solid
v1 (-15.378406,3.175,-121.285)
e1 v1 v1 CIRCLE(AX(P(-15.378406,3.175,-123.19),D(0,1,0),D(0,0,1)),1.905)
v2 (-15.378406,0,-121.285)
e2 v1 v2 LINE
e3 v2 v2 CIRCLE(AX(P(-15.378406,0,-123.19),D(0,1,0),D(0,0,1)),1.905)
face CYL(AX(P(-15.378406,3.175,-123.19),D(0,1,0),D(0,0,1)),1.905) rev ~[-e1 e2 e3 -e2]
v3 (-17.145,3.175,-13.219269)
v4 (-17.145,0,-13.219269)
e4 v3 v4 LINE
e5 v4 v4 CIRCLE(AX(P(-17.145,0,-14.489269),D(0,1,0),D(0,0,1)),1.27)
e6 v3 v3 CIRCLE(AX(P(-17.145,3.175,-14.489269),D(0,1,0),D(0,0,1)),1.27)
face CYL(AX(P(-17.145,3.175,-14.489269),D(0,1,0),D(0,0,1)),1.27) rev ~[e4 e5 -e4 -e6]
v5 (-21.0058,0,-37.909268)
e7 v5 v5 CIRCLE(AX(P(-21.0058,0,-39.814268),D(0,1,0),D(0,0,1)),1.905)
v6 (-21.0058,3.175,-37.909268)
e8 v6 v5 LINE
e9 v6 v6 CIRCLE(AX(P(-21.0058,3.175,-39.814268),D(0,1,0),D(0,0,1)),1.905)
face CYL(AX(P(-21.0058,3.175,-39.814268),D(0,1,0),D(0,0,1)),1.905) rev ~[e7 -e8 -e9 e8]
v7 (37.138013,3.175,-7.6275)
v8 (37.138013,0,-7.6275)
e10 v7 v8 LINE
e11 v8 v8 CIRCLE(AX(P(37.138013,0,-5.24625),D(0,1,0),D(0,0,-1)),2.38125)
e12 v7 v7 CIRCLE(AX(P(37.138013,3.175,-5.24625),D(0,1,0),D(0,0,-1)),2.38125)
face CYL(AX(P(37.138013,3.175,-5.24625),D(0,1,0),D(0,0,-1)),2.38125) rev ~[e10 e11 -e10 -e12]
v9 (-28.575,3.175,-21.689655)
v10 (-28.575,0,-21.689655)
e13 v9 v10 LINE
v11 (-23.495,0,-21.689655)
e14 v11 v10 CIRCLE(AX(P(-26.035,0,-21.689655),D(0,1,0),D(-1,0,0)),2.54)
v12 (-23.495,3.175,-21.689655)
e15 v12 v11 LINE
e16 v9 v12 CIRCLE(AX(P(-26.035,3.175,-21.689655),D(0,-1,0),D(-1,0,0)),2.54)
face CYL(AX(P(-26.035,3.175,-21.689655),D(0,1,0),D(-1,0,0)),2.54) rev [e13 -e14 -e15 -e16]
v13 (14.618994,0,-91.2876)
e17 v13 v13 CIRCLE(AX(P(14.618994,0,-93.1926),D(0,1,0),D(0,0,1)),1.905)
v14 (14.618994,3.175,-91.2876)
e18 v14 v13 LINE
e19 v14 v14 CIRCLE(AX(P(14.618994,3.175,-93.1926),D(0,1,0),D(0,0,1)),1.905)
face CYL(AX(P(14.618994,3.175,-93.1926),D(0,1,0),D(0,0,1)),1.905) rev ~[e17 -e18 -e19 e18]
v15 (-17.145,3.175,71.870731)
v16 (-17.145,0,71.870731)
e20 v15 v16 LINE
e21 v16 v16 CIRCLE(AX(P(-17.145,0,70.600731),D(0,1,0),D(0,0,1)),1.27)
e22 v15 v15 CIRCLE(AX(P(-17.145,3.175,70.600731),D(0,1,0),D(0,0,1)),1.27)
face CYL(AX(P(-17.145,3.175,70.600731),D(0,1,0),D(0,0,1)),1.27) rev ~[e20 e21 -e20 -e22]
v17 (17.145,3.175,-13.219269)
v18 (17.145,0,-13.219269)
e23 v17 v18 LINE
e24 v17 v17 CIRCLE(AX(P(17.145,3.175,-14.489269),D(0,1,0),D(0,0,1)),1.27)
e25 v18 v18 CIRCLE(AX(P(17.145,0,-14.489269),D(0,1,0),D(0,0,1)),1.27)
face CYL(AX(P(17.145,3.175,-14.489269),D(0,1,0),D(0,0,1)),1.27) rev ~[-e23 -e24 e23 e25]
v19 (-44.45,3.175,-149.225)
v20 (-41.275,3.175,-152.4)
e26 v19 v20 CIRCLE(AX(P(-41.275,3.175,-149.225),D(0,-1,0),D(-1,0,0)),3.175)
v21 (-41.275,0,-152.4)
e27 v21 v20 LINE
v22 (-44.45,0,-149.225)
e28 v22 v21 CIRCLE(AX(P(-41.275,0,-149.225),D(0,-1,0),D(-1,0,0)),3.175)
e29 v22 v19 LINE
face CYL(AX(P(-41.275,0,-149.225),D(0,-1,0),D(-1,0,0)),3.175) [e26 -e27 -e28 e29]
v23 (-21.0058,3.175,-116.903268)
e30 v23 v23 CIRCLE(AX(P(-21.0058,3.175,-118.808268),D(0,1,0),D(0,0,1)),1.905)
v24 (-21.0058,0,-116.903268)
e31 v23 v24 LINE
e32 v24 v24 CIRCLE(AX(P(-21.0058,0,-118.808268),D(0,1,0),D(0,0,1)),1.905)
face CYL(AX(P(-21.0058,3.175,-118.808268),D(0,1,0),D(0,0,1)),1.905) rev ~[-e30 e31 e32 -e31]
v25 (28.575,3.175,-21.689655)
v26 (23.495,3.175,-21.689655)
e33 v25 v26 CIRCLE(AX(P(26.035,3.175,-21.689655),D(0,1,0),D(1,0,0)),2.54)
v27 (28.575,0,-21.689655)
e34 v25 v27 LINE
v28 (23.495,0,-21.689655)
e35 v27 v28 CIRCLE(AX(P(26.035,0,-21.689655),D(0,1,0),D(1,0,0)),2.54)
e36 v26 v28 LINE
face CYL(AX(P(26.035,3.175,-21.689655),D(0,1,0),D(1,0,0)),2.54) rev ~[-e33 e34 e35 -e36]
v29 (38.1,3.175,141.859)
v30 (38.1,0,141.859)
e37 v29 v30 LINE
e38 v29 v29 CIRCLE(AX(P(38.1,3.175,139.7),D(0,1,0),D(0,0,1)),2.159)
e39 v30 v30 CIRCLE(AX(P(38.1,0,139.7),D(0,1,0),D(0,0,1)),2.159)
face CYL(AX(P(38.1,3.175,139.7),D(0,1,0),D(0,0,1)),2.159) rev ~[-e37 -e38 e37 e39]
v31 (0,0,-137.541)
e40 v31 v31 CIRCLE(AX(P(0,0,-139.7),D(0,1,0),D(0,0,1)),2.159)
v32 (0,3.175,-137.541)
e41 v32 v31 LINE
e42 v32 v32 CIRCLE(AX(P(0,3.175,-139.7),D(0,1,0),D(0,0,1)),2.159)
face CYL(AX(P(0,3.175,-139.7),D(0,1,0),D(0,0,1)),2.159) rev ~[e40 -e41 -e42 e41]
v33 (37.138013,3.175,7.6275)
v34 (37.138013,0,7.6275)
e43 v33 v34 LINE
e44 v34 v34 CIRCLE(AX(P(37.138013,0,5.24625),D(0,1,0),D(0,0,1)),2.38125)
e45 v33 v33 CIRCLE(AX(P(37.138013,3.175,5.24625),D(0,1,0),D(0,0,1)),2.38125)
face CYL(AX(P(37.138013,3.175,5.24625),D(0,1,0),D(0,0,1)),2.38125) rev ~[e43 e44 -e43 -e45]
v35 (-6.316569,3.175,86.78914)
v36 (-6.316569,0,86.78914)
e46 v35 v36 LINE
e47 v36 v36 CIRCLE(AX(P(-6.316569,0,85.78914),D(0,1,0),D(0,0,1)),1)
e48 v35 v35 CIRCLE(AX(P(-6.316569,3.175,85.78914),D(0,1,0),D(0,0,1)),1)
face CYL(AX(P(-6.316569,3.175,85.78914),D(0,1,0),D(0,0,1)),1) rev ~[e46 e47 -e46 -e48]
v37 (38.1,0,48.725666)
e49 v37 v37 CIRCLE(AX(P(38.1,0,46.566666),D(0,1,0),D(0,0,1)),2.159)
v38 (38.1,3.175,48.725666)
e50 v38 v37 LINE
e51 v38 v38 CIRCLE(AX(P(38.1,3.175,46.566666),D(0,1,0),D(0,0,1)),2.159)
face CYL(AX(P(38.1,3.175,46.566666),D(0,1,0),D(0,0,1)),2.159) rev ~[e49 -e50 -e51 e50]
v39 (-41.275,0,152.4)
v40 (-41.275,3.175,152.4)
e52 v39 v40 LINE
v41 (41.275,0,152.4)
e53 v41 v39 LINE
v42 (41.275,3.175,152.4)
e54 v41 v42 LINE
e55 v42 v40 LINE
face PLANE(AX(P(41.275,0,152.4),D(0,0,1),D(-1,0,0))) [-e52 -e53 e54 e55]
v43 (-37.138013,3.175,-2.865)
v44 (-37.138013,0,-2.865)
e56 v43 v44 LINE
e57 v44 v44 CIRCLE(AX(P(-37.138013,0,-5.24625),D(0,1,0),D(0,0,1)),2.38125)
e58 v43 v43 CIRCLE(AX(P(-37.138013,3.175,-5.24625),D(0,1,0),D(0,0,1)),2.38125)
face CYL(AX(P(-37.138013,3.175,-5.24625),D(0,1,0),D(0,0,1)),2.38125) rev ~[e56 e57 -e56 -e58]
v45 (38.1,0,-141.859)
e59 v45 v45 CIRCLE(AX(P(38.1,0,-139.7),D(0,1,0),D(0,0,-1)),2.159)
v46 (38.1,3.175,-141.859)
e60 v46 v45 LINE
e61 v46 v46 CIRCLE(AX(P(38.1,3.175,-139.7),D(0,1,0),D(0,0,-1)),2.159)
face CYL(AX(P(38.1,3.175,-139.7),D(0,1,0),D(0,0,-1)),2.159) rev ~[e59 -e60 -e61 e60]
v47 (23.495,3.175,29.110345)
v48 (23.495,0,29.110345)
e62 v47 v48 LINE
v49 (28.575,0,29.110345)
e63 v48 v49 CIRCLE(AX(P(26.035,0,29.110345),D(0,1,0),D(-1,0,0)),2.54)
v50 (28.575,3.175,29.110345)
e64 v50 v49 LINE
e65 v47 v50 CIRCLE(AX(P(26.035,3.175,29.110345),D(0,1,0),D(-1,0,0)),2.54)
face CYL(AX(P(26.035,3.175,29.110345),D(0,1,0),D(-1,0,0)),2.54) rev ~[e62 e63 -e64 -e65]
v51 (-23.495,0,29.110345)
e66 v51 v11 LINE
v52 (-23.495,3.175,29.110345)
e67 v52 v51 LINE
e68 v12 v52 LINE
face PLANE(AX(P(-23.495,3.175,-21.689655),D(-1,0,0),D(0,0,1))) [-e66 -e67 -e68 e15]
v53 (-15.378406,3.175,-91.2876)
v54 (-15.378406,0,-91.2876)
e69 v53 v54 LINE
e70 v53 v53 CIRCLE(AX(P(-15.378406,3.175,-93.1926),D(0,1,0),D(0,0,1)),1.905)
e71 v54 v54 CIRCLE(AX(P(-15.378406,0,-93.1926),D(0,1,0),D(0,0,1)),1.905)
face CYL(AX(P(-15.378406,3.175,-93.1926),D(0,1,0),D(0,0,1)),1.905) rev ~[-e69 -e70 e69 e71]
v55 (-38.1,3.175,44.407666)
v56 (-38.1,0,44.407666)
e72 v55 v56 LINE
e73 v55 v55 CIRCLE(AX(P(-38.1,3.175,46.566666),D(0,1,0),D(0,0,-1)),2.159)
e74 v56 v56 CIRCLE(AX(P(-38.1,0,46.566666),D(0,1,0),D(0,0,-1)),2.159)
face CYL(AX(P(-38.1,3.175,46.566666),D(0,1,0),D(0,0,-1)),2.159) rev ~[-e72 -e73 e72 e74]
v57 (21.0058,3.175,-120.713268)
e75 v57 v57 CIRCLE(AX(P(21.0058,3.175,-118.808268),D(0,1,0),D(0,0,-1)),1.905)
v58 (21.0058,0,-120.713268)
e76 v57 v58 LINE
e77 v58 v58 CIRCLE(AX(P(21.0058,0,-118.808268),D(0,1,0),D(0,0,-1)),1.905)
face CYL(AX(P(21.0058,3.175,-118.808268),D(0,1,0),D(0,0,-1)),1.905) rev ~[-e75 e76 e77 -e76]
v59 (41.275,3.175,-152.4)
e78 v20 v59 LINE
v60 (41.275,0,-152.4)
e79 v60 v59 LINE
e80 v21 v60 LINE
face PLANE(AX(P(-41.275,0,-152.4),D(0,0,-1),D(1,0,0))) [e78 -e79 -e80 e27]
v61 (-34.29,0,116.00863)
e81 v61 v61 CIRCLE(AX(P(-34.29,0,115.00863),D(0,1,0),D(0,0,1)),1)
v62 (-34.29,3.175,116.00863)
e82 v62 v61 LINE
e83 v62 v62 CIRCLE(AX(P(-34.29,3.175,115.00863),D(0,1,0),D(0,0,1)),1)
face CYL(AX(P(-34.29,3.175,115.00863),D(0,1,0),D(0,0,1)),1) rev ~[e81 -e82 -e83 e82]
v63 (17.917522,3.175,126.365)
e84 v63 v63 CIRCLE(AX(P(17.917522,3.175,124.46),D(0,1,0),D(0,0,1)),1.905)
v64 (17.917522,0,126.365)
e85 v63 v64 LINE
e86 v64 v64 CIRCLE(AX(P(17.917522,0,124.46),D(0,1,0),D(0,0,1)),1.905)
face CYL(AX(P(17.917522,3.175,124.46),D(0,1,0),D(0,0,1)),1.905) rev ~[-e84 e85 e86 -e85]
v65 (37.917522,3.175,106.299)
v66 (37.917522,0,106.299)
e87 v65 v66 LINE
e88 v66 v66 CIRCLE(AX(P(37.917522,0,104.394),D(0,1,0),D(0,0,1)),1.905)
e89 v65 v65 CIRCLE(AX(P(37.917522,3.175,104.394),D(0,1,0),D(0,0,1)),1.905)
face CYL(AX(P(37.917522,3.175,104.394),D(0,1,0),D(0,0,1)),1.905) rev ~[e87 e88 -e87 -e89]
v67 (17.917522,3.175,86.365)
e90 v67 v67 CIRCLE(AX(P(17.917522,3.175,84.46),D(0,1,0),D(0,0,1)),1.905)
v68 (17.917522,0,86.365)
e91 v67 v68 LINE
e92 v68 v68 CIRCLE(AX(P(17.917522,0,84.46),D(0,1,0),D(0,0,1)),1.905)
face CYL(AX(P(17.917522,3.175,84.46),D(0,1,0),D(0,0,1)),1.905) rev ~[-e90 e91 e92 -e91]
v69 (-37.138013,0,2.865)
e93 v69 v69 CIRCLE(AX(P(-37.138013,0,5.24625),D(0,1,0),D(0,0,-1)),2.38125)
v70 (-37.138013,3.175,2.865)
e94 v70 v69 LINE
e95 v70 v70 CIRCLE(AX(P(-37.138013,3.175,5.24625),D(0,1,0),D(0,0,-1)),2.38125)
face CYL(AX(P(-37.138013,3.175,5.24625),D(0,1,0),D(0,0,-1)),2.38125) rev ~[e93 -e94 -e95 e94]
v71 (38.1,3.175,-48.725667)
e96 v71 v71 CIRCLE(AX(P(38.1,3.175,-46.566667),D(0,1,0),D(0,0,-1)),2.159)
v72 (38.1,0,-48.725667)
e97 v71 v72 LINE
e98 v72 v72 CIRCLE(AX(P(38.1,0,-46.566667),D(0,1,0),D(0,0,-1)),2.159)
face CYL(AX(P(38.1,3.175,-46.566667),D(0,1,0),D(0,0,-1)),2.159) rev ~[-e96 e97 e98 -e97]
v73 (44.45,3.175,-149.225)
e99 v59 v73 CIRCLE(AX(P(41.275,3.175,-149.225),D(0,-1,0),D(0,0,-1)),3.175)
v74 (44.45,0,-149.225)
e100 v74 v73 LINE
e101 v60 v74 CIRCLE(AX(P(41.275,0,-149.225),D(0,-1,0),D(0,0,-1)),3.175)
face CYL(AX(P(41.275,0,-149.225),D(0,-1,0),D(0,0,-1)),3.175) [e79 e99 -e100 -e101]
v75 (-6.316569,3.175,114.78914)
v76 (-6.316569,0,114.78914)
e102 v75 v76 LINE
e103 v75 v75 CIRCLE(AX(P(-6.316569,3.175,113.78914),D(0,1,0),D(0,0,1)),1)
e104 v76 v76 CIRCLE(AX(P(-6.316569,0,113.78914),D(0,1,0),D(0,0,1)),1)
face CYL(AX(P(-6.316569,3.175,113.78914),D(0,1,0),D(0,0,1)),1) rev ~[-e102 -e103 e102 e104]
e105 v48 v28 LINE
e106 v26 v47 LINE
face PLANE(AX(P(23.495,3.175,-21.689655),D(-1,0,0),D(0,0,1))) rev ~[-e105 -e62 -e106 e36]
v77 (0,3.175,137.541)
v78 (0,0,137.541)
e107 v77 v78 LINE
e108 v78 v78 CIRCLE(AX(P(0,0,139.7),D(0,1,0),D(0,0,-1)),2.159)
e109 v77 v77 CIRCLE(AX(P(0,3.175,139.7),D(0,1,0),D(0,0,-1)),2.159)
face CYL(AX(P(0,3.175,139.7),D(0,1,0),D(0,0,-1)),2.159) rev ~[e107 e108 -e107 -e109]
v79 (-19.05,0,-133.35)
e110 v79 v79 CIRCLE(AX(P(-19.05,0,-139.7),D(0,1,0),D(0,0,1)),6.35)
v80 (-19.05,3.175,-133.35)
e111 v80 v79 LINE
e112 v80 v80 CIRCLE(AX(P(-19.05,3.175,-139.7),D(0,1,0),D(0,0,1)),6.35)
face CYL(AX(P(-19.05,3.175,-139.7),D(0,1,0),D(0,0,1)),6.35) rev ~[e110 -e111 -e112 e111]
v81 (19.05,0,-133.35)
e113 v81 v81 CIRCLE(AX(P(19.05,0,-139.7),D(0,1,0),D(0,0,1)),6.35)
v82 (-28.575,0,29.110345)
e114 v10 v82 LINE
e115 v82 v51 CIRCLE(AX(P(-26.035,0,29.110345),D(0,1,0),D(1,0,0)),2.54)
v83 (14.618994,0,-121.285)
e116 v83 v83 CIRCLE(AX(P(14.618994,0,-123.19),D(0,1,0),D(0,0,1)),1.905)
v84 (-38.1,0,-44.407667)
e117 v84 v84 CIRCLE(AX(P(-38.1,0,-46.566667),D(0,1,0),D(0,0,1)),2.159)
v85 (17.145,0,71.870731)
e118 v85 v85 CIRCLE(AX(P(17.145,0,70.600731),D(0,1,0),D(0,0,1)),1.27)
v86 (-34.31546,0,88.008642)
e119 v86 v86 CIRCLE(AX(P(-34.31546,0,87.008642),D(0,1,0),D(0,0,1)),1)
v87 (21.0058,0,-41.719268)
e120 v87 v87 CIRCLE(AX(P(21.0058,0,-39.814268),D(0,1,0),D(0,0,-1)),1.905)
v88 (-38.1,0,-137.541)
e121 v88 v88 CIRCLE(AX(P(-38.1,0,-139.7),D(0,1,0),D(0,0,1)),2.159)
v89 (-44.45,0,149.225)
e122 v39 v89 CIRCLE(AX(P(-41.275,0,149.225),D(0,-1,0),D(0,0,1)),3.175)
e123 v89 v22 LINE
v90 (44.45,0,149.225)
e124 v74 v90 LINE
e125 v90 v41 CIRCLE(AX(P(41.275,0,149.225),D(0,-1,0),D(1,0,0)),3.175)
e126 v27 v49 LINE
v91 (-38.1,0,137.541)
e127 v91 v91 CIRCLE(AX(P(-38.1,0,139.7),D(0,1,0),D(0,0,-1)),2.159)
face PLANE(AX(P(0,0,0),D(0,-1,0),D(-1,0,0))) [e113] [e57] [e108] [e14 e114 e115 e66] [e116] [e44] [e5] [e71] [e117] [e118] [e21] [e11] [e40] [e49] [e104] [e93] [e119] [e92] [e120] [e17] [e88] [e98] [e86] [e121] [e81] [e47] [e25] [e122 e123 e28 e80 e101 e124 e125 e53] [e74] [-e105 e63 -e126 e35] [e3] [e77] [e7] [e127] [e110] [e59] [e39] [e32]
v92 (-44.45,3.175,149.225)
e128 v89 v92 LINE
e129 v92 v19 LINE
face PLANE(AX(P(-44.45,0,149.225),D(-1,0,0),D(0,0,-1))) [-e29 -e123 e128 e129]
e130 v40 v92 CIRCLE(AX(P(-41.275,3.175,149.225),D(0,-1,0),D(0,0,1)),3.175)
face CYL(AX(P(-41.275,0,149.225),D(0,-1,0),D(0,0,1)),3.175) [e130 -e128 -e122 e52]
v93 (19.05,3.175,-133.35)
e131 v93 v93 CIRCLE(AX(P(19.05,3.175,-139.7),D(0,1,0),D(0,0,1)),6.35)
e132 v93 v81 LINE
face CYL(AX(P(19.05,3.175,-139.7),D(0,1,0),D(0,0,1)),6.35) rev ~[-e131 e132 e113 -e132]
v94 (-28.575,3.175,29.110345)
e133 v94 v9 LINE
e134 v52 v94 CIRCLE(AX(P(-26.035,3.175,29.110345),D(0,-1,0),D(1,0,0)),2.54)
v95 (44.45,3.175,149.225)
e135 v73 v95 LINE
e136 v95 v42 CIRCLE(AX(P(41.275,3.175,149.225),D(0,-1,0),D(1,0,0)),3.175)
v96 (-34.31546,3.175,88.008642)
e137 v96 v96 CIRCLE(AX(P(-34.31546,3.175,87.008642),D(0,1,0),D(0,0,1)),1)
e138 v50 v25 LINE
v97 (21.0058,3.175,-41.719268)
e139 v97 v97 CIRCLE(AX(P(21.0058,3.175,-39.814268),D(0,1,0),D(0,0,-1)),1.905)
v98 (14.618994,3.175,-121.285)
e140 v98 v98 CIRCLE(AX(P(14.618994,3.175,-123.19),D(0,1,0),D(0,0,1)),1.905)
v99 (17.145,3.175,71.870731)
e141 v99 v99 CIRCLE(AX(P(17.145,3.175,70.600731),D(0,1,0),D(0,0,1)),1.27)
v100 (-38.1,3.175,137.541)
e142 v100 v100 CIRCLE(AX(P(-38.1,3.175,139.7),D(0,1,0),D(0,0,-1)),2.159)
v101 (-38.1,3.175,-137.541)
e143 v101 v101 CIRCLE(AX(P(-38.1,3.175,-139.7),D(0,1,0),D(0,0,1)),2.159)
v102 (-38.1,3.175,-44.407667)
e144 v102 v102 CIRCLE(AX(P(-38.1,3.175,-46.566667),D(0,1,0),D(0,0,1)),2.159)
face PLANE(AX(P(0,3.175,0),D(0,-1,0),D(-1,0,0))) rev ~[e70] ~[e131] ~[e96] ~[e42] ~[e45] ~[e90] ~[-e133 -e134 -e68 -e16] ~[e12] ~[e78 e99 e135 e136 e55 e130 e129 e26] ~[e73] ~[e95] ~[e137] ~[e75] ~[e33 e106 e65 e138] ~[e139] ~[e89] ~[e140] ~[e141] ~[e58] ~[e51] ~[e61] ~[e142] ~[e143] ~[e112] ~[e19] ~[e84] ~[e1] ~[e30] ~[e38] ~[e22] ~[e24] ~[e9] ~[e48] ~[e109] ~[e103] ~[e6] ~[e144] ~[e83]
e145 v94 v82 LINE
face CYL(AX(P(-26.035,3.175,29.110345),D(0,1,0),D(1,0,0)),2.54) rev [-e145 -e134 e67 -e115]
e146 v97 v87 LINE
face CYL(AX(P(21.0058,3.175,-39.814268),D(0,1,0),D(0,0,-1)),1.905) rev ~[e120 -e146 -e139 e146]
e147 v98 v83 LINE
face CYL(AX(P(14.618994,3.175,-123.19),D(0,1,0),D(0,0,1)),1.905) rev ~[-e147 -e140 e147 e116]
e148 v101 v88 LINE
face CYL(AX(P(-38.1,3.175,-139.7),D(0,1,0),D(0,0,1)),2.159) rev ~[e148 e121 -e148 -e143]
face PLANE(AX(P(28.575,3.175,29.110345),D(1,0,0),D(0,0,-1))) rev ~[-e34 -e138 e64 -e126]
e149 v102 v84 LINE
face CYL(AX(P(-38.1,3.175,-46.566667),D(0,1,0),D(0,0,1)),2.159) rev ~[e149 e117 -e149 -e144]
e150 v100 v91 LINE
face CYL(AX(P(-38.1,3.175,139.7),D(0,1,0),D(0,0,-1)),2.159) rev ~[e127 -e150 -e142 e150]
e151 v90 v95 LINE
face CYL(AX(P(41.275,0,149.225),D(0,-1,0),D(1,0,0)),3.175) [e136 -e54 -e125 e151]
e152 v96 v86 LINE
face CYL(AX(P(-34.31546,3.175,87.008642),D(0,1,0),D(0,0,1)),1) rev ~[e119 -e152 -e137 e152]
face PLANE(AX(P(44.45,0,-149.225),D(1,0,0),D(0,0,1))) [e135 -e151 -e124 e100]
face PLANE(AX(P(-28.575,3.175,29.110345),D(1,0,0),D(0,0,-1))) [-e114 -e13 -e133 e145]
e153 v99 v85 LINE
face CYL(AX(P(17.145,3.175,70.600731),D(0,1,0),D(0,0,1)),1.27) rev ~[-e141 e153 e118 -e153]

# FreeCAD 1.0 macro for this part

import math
import FreeCAD as App
import Part
import Sketcher
from FreeCAD import Vector
Q = App.Units.Quantity

doc = App.newDocument("Part")
params = doc.addObject("Spreadsheet::Sheet", "Params")
for row, (alias, value) in enumerate([
    ("sketch1_radius", "0.125 in"),
    ("sketch1_width", "3.25 in"),
    ("pad1_length", "0.125 in"),
    ("sketch2_diameter", "0.17 in"),
    ("sketch3_diameter", "0.15 in"),
    ("sketch4_diameter", "0.15 in"),
    ("sketch5_diameter", "0.1 in"),
    ("sketch6_radius", "0.1 in"),
    ("sketch6_height", "2 in"),
    ("sketch11_diameter", "0.5 in"),
    ("sketch12_diameter", "0.15 in"),
    ("sketch13_diameter", "0.1875 in"),
], start=1):
    params.set(f"A{row}", alias)
    params.set(f"B{row}", "=" + value)
    params.setAlias(f"B{row}", alias)

body = doc.addObject("PartDesign::Body", "Body")

# Sketch on XZ plane
sketch1 = doc.addObject("Sketcher::SketchObject", "Sketch")
body.addObject(sketch1)
sketch1.AttachmentSupport = (doc.XZ_Plane, [""])
sketch1.MapMode = "FlatFace"
sketch1.addGeometry(Part.LineSegment(Vector(41.3, -152.4, 0), Vector(-41.3, -152.4, 0)), False)
sketch1.addGeometry(Part.ArcOfCircle(Part.Circle(Vector(-41.3, -149.2, 0), Vector(0, 0, 1), 3.2), math.radians(-180), math.radians(-90)), False)
sketch1.addGeometry(Part.LineSegment(Vector(-44.5, -149.2, 0), Vector(-44.5, 149.2, 0)), False)
sketch1.addGeometry(Part.ArcOfCircle(Part.Circle(Vector(-41.3, 149.2, 0), Vector(0, 0, 1), 3.2), math.radians(90), math.radians(180)), False)
sketch1.addGeometry(Part.LineSegment(Vector(-41.3, 152.4, 0), Vector(41.3, 152.4, 0)), False)
sketch1.addGeometry(Part.ArcOfCircle(Part.Circle(Vector(41.3, 149.2, 0), Vector(0, 0, 1), 3.2), math.radians(0), math.radians(90)), False)
sketch1.addGeometry(Part.LineSegment(Vector(44.5, 149.2, 0), Vector(44.5, -149.2, 0)), False)
sketch1.addGeometry(Part.ArcOfCircle(Part.Circle(Vector(41.3, -149.2, 0), Vector(0, 0, 1), 3.2), math.radians(-90), math.radians(0)), False)
sketch1.addConstraint(Sketcher.Constraint("Tangent", 0, 2, 1, 2))
sketch1.addConstraint(Sketcher.Constraint("Tangent", 1, 1, 2, 1))
sketch1.addConstraint(Sketcher.Constraint("Tangent", 2, 2, 3, 2))
sketch1.addConstraint(Sketcher.Constraint("Tangent", 3, 1, 4, 1))
sketch1.addConstraint(Sketcher.Constraint("Tangent", 4, 2, 5, 2))
sketch1.addConstraint(Sketcher.Constraint("Tangent", 5, 1, 6, 1))
sketch1.addConstraint(Sketcher.Constraint("Tangent", 6, 2, 7, 2))
sketch1.addConstraint(Sketcher.Constraint("Tangent", 7, 1, 0, 1))
sketch1.addConstraint(Sketcher.Constraint("Horizontal", 0))
sketch1.addConstraint(Sketcher.Constraint("Vertical", 2))
sketch1.addConstraint(Sketcher.Constraint("Horizontal", 4))
sketch1.addConstraint(Sketcher.Constraint("Vertical", 6))
sketch1.addConstraint(Sketcher.Constraint("Equal", 1, 3))
sketch1.addConstraint(Sketcher.Constraint("Equal", 3, 5))
sketch1.addConstraint(Sketcher.Constraint("Equal", 5, 7))
sketch1.addConstraint(Sketcher.Constraint("Symmetric", 1, 3, 5, 3, -1, 1))
sketch1.addConstraint(Sketcher.Constraint("DistanceY", 0, 2, -1, 1, Q("6 in")))
sketch1.addConstraint(Sketcher.Constraint("Radius", 1, Q("0.125 in")))
sketch1.addConstraint(Sketcher.Constraint("DistanceX", 0, 2, 0, 1, Q("3.25 in")))
sketch1.setExpression("Constraints[17]", "Params.sketch1_radius")
sketch1.setExpression("Constraints[18]", "Params.sketch1_width")
pad1 = doc.addObject("PartDesign::Pad", "Pad")
body.addObject(pad1)
pad1.Profile = sketch1
pad1.setExpression("Length", "Params.pad1_length")
pad1.Reversed = True

# Sketch on XZ plane
sketch2 = doc.addObject("Sketcher::SketchObject", "Sketch001")
body.addObject(sketch2)
sketch2.AttachmentSupport = (doc.XZ_Plane, [""])
sketch2.MapMode = "FlatFace"
sketch2.AttachmentOffset = App.Placement(Vector(0, 0, -0.125 * 25.4), App.Rotation())
sketch2.addGeometry(Part.Circle(Vector(-38.1, -139.7, 0), Vector(0, 0, 1), 2.2), False)
sketch2.addGeometry(Part.Circle(Vector(-38.1, -46.6, 0), Vector(0, 0, 1), 2.2), False)
sketch2.addGeometry(Part.Circle(Vector(-38.1, 46.6, 0), Vector(0, 0, 1), 2.2), False)
sketch2.addGeometry(Part.Circle(Vector(-38.1, 139.7, 0), Vector(0, 0, 1), 2.2), False)
sketch2.addGeometry(Part.Circle(Vector(38.1, 139.7, 0), Vector(0, 0, 1), 2.2), False)
sketch2.addGeometry(Part.Circle(Vector(38.1, 46.6, 0), Vector(0, 0, 1), 2.2), False)
sketch2.addGeometry(Part.Circle(Vector(38.1, -46.6, 0), Vector(0, 0, 1), 2.2), False)
sketch2.addGeometry(Part.Circle(Vector(38.1, -139.7, 0), Vector(0, 0, 1), 2.2), False)
sketch2.addGeometry(Part.Circle(Vector(0, -139.7, 0), Vector(0, 0, 1), 2.2), False)
sketch2.addGeometry(Part.Circle(Vector(0, 139.7, 0), Vector(0, 0, 1), 2.2), False)
sketch2.addConstraint(Sketcher.Constraint("Equal", 0, 1))
sketch2.addConstraint(Sketcher.Constraint("Equal", 1, 2))
sketch2.addConstraint(Sketcher.Constraint("Equal", 2, 3))
sketch2.addConstraint(Sketcher.Constraint("Equal", 3, 4))
sketch2.addConstraint(Sketcher.Constraint("Equal", 4, 5))
sketch2.addConstraint(Sketcher.Constraint("Equal", 5, 6))
sketch2.addConstraint(Sketcher.Constraint("Equal", 6, 7))
sketch2.addConstraint(Sketcher.Constraint("Equal", 7, 8))
sketch2.addConstraint(Sketcher.Constraint("Equal", 8, 9))
sketch2.addConstraint(Sketcher.Constraint("Symmetric", 0, 3, 4, 3, -1, 1))
sketch2.addConstraint(Sketcher.Constraint("Symmetric", 1, 3, 5, 3, -1, 1))
sketch2.addConstraint(Sketcher.Constraint("Symmetric", 2, 3, 6, 3, -1, 1))
sketch2.addConstraint(Sketcher.Constraint("Symmetric", 3, 3, 7, 3, -1, 1))
sketch2.addConstraint(Sketcher.Constraint("Symmetric", 8, 3, 9, 3, -1, 1))
sketch2.addConstraint(Sketcher.Constraint("Symmetric", 3, 3, 4, 3, -2))
sketch2.addConstraint(Sketcher.Constraint("Symmetric", 2, 3, 5, 3, -2))
sketch2.addConstraint(Sketcher.Constraint("PointOnObject", 8, 3, -2))
sketch2.addConstraint(Sketcher.Constraint("Horizontal", 7, 3, 8, 3))
sketch2.addConstraint(Sketcher.Constraint("Vertical", 0, 3, 1, 3))
sketch2.addConstraint(Sketcher.Constraint("Diameter", 0, Q("0.17 in")))
sketch2.addConstraint(Sketcher.Constraint("DistanceY", 0, 3, 3, 3, Q("11 in")))
sketch2.addConstraint(Sketcher.Constraint("DistanceX", 3, 3, 4, 3, Q("3 in")))
sketch2.addConstraint(Sketcher.Constraint("DistanceY", 1, 3, -1, 1, 46.566667))
sketch2.setExpression("Constraints[19]", "Params.sketch2_diameter")
pocket1 = doc.addObject("PartDesign::Pocket", "Pocket")
body.addObject(pocket1)
pocket1.Profile = sketch2
pocket1.Type = "ThroughAll"
pocket1.Reversed = True

# Sketch on XZ plane
sketch3 = doc.addObject("Sketcher::SketchObject", "Sketch002")
body.addObject(sketch3)
sketch3.AttachmentSupport = (doc.XZ_Plane, [""])
sketch3.MapMode = "FlatFace"
sketch3.AttachmentOffset = App.Placement(Vector(0, 0, -0.125 * 25.4), App.Rotation())
sketch3.addGeometry(Part.Circle(Vector(-21, -118.8, 0), Vector(0, 0, 1), 1.9), False)
sketch3.addGeometry(Part.Circle(Vector(-21, -39.8, 0), Vector(0, 0, 1), 1.9), False)
sketch3.addGeometry(Part.Circle(Vector(21, -39.8, 0), Vector(0, 0, 1), 1.9), False)
sketch3.addGeometry(Part.Circle(Vector(21, -118.8, 0), Vector(0, 0, 1), 1.9), False)
sketch3.addConstraint(Sketcher.Constraint("Equal", 0, 1))
sketch3.addConstraint(Sketcher.Constraint("Equal", 1, 2))
sketch3.addConstraint(Sketcher.Constraint("Equal", 2, 3))
sketch3.addConstraint(Sketcher.Constraint("Symmetric", 1, 3, 2, 3, -2))
sketch3.addConstraint(Sketcher.Constraint("Symmetric", 0, 3, 3, 3, -2))
sketch3.addConstraint(Sketcher.Constraint("Vertical", 0, 3, 1, 3))
sketch3.addConstraint(Sketcher.Constraint("Diameter", 0, Q("0.15 in")))
sketch3.addConstraint(Sketcher.Constraint("DistanceY", 0, 3, 1, 3, Q("3.11 in")))
sketch3.addConstraint(Sketcher.Constraint("DistanceX", 0, 3, -1, 1, Q("0.827 in")))
sketch3.addConstraint(Sketcher.Constraint("DistanceY", 0, 3, -1, 1, 118.808268))
sketch3.setExpression("Constraints[6]", "Params.sketch3_diameter")
pocket2 = doc.addObject("PartDesign::Pocket", "Pocket001")
body.addObject(pocket2)
pocket2.Profile = sketch3
pocket2.Type = "ThroughAll"
pocket2.Reversed = True

# Sketch on XZ plane
sketch4 = doc.addObject("Sketcher::SketchObject", "Sketch003")
body.addObject(sketch4)
sketch4.AttachmentSupport = (doc.XZ_Plane, [""])
sketch4.MapMode = "FlatFace"
sketch4.AttachmentOffset = App.Placement(Vector(0, 0, -0.125 * 25.4), App.Rotation())
sketch4.addGeometry(Part.Circle(Vector(-15.4, -123.2, 0), Vector(0, 0, 1), 1.9), False)
sketch4.addGeometry(Part.Circle(Vector(14.6, -123.2, 0), Vector(0, 0, 1), 1.9), False)
sketch4.addGeometry(Part.Circle(Vector(14.6, -93.2, 0), Vector(0, 0, 1), 1.9), False)
sketch4.addGeometry(Part.Circle(Vector(-15.4, -93.2, 0), Vector(0, 0, 1), 1.9), False)
sketch4.addConstraint(Sketcher.Constraint("Equal", 0, 1))
sketch4.addConstraint(Sketcher.Constraint("Equal", 1, 2))
sketch4.addConstraint(Sketcher.Constraint("Equal", 2, 3))
sketch4.addConstraint(Sketcher.Constraint("Horizontal", 0, 3, 1, 3))
sketch4.addConstraint(Sketcher.Constraint("Horizontal", 2, 3, 3, 3))
sketch4.addConstraint(Sketcher.Constraint("Vertical", 1, 3, 2, 3))
sketch4.addConstraint(Sketcher.Constraint("Vertical", 0, 3, 3, 3))
sketch4.addConstraint(Sketcher.Constraint("Diameter", 0, Q("0.15 in")))
sketch4.addConstraint(Sketcher.Constraint("DistanceY", 0, 3, -1, 1, Q("4.85 in")))
sketch4.addConstraint(Sketcher.Constraint("DistanceY", 2, 3, -1, 1, Q("3.669 in")))
sketch4.addConstraint(Sketcher.Constraint("DistanceX", 0, 3, 1, 3, Q("1.181 in")))
sketch4.addConstraint(Sketcher.Constraint("DistanceX", 0, 3, -1, 1, 15.378406))
sketch4.setExpression("Constraints[7]", "Params.sketch4_diameter")
pocket3 = doc.addObject("PartDesign::Pocket", "Pocket002")
body.addObject(pocket3)
pocket3.Profile = sketch4
pocket3.Type = "ThroughAll"
pocket3.Reversed = True

# Sketch on XZ plane
sketch5 = doc.addObject("Sketcher::SketchObject", "Sketch004")
body.addObject(sketch5)
sketch5.AttachmentSupport = (doc.XZ_Plane, [""])
sketch5.MapMode = "FlatFace"
sketch5.AttachmentOffset = App.Placement(Vector(0, 0, -0.125 * 25.4), App.Rotation())
sketch5.addGeometry(Part.Circle(Vector(-17.1, -14.5, 0), Vector(0, 0, 1), 1.3), False)
sketch5.addGeometry(Part.Circle(Vector(-17.1, 70.6, 0), Vector(0, 0, 1), 1.3), False)
sketch5.addGeometry(Part.Circle(Vector(17.1, 70.6, 0), Vector(0, 0, 1), 1.3), False)
sketch5.addGeometry(Part.Circle(Vector(17.1, -14.5, 0), Vector(0, 0, 1), 1.3), False)
sketch5.addConstraint(Sketcher.Constraint("Equal", 0, 1))
sketch5.addConstraint(Sketcher.Constraint("Equal", 1, 2))
sketch5.addConstraint(Sketcher.Constraint("Equal", 2, 3))
sketch5.addConstraint(Sketcher.Constraint("Symmetric", 1, 3, 2, 3, -2))
sketch5.addConstraint(Sketcher.Constraint("Symmetric", 0, 3, 3, 3, -2))
sketch5.addConstraint(Sketcher.Constraint("Vertical", 0, 3, 1, 3))
sketch5.addConstraint(Sketcher.Constraint("Diameter", 0, Q("0.1 in")))
sketch5.addConstraint(Sketcher.Constraint("DistanceY", 0, 3, 1, 3, Q("3.35 in")))
sketch5.addConstraint(Sketcher.Constraint("DistanceX", 1, 3, 2, 3, Q("1.35 in")))
sketch5.addConstraint(Sketcher.Constraint("DistanceY", 0, 3, -1, 1, 14.489269))
sketch5.setExpression("Constraints[6]", "Params.sketch5_diameter")
pocket4 = doc.addObject("PartDesign::Pocket", "Pocket003")
body.addObject(pocket4)
pocket4.Profile = sketch5
pocket4.Type = "ThroughAll"
pocket4.Reversed = True

# Sketch on XZ plane
sketch6 = doc.addObject("Sketcher::SketchObject", "Sketch005")
body.addObject(sketch6)
sketch6.AttachmentSupport = (doc.XZ_Plane, [""])
sketch6.MapMode = "FlatFace"
sketch6.AttachmentOffset = App.Placement(Vector(0, 0, -0.125 * 25.4), App.Rotation())
sketch6.addGeometry(Part.LineSegment(Vector(-23.5, 29.1, 0), Vector(-23.5, -21.7, 0)), False)
sketch6.addGeometry(Part.ArcOfCircle(Part.Circle(Vector(-26, -21.7, 0), Vector(0, 0, 1), 2.5), math.radians(180), math.radians(360)), False)
sketch6.addGeometry(Part.LineSegment(Vector(-28.6, -21.7, 0), Vector(-28.6, 29.1, 0)), False)
sketch6.addGeometry(Part.ArcOfCircle(Part.Circle(Vector(-26, 29.1, 0), Vector(0, 0, 1), 2.5), math.radians(0), math.radians(180)), False)
sketch6.addGeometry(Part.LineSegment(Vector(23.5, -21.7, 0), Vector(23.5, 29.1, 0)), False)
sketch6.addGeometry(Part.ArcOfCircle(Part.Circle(Vector(26, 29.1, 0), Vector(0, 0, 1), 2.5), math.radians(0), math.radians(180)), False)
sketch6.addGeometry(Part.LineSegment(Vector(28.6, 29.1, 0), Vector(28.6, -21.7, 0)), False)
sketch6.addGeometry(Part.ArcOfCircle(Part.Circle(Vector(26, -21.7, 0), Vector(0, 0, 1), 2.5), math.radians(180), math.radians(360)), False)
sketch6.addConstraint(Sketcher.Constraint("Tangent", 0, 2, 1, 2))
sketch6.addConstraint(Sketcher.Constraint("Tangent", 1, 1, 2, 1))
sketch6.addConstraint(Sketcher.Constraint("Tangent", 2, 2, 3, 2))
sketch6.addConstraint(Sketcher.Constraint("Tangent", 3, 1, 0, 1))
sketch6.addConstraint(Sketcher.Constraint("Tangent", 4, 2, 5, 2))
sketch6.addConstraint(Sketcher.Constraint("Tangent", 5, 1, 6, 1))
sketch6.addConstraint(Sketcher.Constraint("Tangent", 6, 2, 7, 2))
sketch6.addConstraint(Sketcher.Constraint("Tangent", 7, 1, 4, 1))
sketch6.addConstraint(Sketcher.Constraint("Vertical", 0))
sketch6.addConstraint(Sketcher.Constraint("Vertical", 2))
sketch6.addConstraint(Sketcher.Constraint("Vertical", 4))
sketch6.addConstraint(Sketcher.Constraint("Vertical", 6))
sketch6.addConstraint(Sketcher.Constraint("Equal", 3, 5))
sketch6.addConstraint(Sketcher.Constraint("Symmetric", 3, 3, 5, 3, -2))
sketch6.addConstraint(Sketcher.Constraint("Horizontal", 1, 3, 7, 3))
sketch6.addConstraint(Sketcher.Constraint("Radius", 1, Q("0.1 in")))
sketch6.addConstraint(Sketcher.Constraint("DistanceY", 0, 2, 0, 1, Q("2 in")))
sketch6.addConstraint(Sketcher.Constraint("DistanceX", 3, 3, 5, 3, Q("2.05 in")))
sketch6.addConstraint(Sketcher.Constraint("DistanceY", 1, 3, -1, 1, 21.689655))
sketch6.setExpression("Constraints[15]", "Params.sketch6_radius")
sketch6.setExpression("Constraints[16]", "Params.sketch6_height")
pocket5 = doc.addObject("PartDesign::Pocket", "Pocket004")
body.addObject(pocket5)
pocket5.Profile = sketch6
pocket5.Type = "ThroughAll"
pocket5.Reversed = True

# Sketch on XZ plane
sketch7 = doc.addObject("Sketcher::SketchObject", "Sketch006")
body.addObject(sketch7)
sketch7.AttachmentSupport = (doc.XZ_Plane, [""])
sketch7.MapMode = "FlatFace"
sketch7.AttachmentOffset = App.Placement(Vector(0, 0, -0.125 * 25.4), App.Rotation())
sketch7.addGeometry(Part.Circle(Vector(-34.3, 87, 0), Vector(0, 0, 1), 1), False)
sketch7.addConstraint(Sketcher.Constraint("Diameter", 0, 2.0))
sketch7.addConstraint(Sketcher.Constraint("DistanceX", 0, 3, -1, 1, 34.31546))
sketch7.addConstraint(Sketcher.Constraint("DistanceY", -1, 1, 0, 3, 87.008642))
pocket6 = doc.addObject("PartDesign::Pocket", "Pocket005")
body.addObject(pocket6)
pocket6.Profile = sketch7
pocket6.Type = "UpToFirst"
pocket6.Reversed = True

# Sketch on XZ plane
sketch8 = doc.addObject("Sketcher::SketchObject", "Sketch007")
body.addObject(sketch8)
sketch8.AttachmentSupport = (doc.XZ_Plane, [""])
sketch8.MapMode = "FlatFace"
sketch8.AttachmentOffset = App.Placement(Vector(0, 0, -0.125 * 25.4), App.Rotation())
sketch8.addGeometry(Part.Circle(Vector(-34.3, 115, 0), Vector(0, 0, 1), 1), False)
sketch8.addConstraint(Sketcher.Constraint("Diameter", 0, 2.0))
sketch8.addConstraint(Sketcher.Constraint("DistanceX", 0, 3, -1, 1, Q("1.35 in")))
sketch8.addConstraint(Sketcher.Constraint("DistanceY", -1, 1, 0, 3, 115.00863))
pocket7 = doc.addObject("PartDesign::Pocket", "Pocket006")
body.addObject(pocket7)
pocket7.Profile = sketch8
pocket7.Type = "UpToFirst"
pocket7.Reversed = True

# Sketch on XZ plane
sketch9 = doc.addObject("Sketcher::SketchObject", "Sketch008")
body.addObject(sketch9)
sketch9.AttachmentSupport = (doc.XZ_Plane, [""])
sketch9.MapMode = "FlatFace"
sketch9.AttachmentOffset = App.Placement(Vector(0, 0, -0.125 * 25.4), App.Rotation())
sketch9.addGeometry(Part.Circle(Vector(-6.3, 85.8, 0), Vector(0, 0, 1), 1), False)
sketch9.addConstraint(Sketcher.Constraint("Diameter", 0, 2.0))
sketch9.addConstraint(Sketcher.Constraint("DistanceX", 0, 3, -1, 1, 6.316569))
sketch9.addConstraint(Sketcher.Constraint("DistanceY", -1, 1, 0, 3, 85.78914))
pocket8 = doc.addObject("PartDesign::Pocket", "Pocket007")
body.addObject(pocket8)
pocket8.Profile = sketch9
pocket8.Type = "UpToFirst"
pocket8.Reversed = True

# Sketch on XZ plane
sketch10 = doc.addObject("Sketcher::SketchObject", "Sketch009")
body.addObject(sketch10)
sketch10.AttachmentSupport = (doc.XZ_Plane, [""])
sketch10.MapMode = "FlatFace"
sketch10.AttachmentOffset = App.Placement(Vector(0, 0, -0.125 * 25.4), App.Rotation())
sketch10.addGeometry(Part.Circle(Vector(-6.3, 113.8, 0), Vector(0, 0, 1), 1), False)
sketch10.addConstraint(Sketcher.Constraint("Diameter", 0, 2.0))
sketch10.addConstraint(Sketcher.Constraint("DistanceX", 0, 3, -1, 1, 6.316569))
sketch10.addConstraint(Sketcher.Constraint("DistanceY", -1, 1, 0, 3, 113.78914))
pocket9 = doc.addObject("PartDesign::Pocket", "Pocket008")
body.addObject(pocket9)
pocket9.Profile = sketch10
pocket9.Type = "UpToFirst"
pocket9.Reversed = True

# Sketch on XZ plane
sketch11 = doc.addObject("Sketcher::SketchObject", "Sketch010")
body.addObject(sketch11)
sketch11.AttachmentSupport = (doc.XZ_Plane, [""])
sketch11.MapMode = "FlatFace"
sketch11.AttachmentOffset = App.Placement(Vector(0, 0, -0.125 * 25.4), App.Rotation())
sketch11.addGeometry(Part.Circle(Vector(-19, -140, 0), Vector(0, 0, 1), 6), False)
sketch11.addGeometry(Part.Circle(Vector(19, -140, 0), Vector(0, 0, 1), 6), False)
sketch11.addConstraint(Sketcher.Constraint("Equal", 0, 1))
sketch11.addConstraint(Sketcher.Constraint("Symmetric", 0, 3, 1, 3, -2))
sketch11.addConstraint(Sketcher.Constraint("Diameter", 0, Q("0.5 in")))
sketch11.addConstraint(Sketcher.Constraint("DistanceY", 0, 3, -1, 1, Q("5.5 in")))
sketch11.addConstraint(Sketcher.Constraint("DistanceX", 0, 3, 1, 3, Q("1.5 in")))
sketch11.setExpression("Constraints[2]", "Params.sketch11_diameter")
pocket10 = doc.addObject("PartDesign::Pocket", "Pocket009")
body.addObject(pocket10)
pocket10.Profile = sketch11
pocket10.Type = "ThroughAll"
pocket10.Reversed = True

# Sketch on XZ plane
sketch12 = doc.addObject("Sketcher::SketchObject", "Sketch011")
body.addObject(sketch12)
sketch12.AttachmentSupport = (doc.XZ_Plane, [""])
sketch12.MapMode = "FlatFace"
sketch12.AttachmentOffset = App.Placement(Vector(0, 0, -0.125 * 25.4), App.Rotation())
sketch12.addGeometry(Part.Circle(Vector(37.9, 104.4, 0), Vector(0, 0, 1), 1.9), False)
sketch12.addGeometry(Part.Circle(Vector(17.9, 84.5, 0), Vector(0, 0, 1), 1.9), False)
sketch12.addGeometry(Part.Circle(Vector(17.9, 124.5, 0), Vector(0, 0, 1), 1.9), False)
sketch12.addConstraint(Sketcher.Constraint("Equal", 0, 1))
sketch12.addConstraint(Sketcher.Constraint("Equal", 1, 2))
sketch12.addConstraint(Sketcher.Constraint("Vertical", 1, 3, 2, 3))
sketch12.addConstraint(Sketcher.Constraint("Diameter", 0, Q("0.15 in")))
sketch12.addConstraint(Sketcher.Constraint("DistanceY", -1, 1, 2, 3, Q("4.9 in")))
sketch12.addConstraint(Sketcher.Constraint("DistanceY", -1, 1, 0, 3, Q("4.11 in")))
sketch12.addConstraint(Sketcher.Constraint("DistanceY", -1, 1, 1, 3, 84.46))
sketch12.addConstraint(Sketcher.Constraint("DistanceX", 1, 3, 0, 3, 20.0))
sketch12.addConstraint(Sketcher.Constraint("DistanceX", -1, 1, 0, 3, 37.917522))
sketch12.setExpression("Constraints[3]", "Params.sketch12_diameter")
pocket11 = doc.addObject("PartDesign::Pocket", "Pocket010")
body.addObject(pocket11)
pocket11.Profile = sketch12
pocket11.Type = "ThroughAll"
pocket11.Reversed = True

# Sketch on XZ plane
sketch13 = doc.addObject("Sketcher::SketchObject", "Sketch012")
body.addObject(sketch13)
sketch13.AttachmentSupport = (doc.XZ_Plane, [""])
sketch13.MapMode = "FlatFace"
sketch13.AttachmentOffset = App.Placement(Vector(0, 0, -0.125 * 25.4), App.Rotation())
sketch13.addGeometry(Part.Circle(Vector(-37.1, -5.2, 0), Vector(0, 0, 1), 2.4), False)
sketch13.addGeometry(Part.Circle(Vector(-37.1, 5.2, 0), Vector(0, 0, 1), 2.4), False)
sketch13.addGeometry(Part.Circle(Vector(37.1, 5.2, 0), Vector(0, 0, 1), 2.4), False)
sketch13.addGeometry(Part.Circle(Vector(37.1, -5.2, 0), Vector(0, 0, 1), 2.4), False)
sketch13.addConstraint(Sketcher.Constraint("Equal", 0, 1))
sketch13.addConstraint(Sketcher.Constraint("Equal", 1, 2))
sketch13.addConstraint(Sketcher.Constraint("Equal", 2, 3))
sketch13.addConstraint(Sketcher.Constraint("Symmetric", 0, 3, 2, 3, -1, 1))
sketch13.addConstraint(Sketcher.Constraint("Symmetric", 1, 3, 3, 3, -1, 1))
sketch13.addConstraint(Sketcher.Constraint("Symmetric", 1, 3, 2, 3, -2))
sketch13.addConstraint(Sketcher.Constraint("Diameter", 0, Q("0.1875 in")))
sketch13.addConstraint(Sketcher.Constraint("DistanceY", 0, 3, 1, 3, 10.4925))
sketch13.addConstraint(Sketcher.Constraint("DistanceX", 0, 3, -1, 1, 37.138013))
sketch13.setExpression("Constraints[6]", "Params.sketch13_diameter")
pocket12 = doc.addObject("PartDesign::Pocket", "Pocket011")
body.addObject(pocket12)
pocket12.Profile = sketch13
pocket12.Type = "ThroughAll"
pocket12.Reversed = True

doc.recompute()
